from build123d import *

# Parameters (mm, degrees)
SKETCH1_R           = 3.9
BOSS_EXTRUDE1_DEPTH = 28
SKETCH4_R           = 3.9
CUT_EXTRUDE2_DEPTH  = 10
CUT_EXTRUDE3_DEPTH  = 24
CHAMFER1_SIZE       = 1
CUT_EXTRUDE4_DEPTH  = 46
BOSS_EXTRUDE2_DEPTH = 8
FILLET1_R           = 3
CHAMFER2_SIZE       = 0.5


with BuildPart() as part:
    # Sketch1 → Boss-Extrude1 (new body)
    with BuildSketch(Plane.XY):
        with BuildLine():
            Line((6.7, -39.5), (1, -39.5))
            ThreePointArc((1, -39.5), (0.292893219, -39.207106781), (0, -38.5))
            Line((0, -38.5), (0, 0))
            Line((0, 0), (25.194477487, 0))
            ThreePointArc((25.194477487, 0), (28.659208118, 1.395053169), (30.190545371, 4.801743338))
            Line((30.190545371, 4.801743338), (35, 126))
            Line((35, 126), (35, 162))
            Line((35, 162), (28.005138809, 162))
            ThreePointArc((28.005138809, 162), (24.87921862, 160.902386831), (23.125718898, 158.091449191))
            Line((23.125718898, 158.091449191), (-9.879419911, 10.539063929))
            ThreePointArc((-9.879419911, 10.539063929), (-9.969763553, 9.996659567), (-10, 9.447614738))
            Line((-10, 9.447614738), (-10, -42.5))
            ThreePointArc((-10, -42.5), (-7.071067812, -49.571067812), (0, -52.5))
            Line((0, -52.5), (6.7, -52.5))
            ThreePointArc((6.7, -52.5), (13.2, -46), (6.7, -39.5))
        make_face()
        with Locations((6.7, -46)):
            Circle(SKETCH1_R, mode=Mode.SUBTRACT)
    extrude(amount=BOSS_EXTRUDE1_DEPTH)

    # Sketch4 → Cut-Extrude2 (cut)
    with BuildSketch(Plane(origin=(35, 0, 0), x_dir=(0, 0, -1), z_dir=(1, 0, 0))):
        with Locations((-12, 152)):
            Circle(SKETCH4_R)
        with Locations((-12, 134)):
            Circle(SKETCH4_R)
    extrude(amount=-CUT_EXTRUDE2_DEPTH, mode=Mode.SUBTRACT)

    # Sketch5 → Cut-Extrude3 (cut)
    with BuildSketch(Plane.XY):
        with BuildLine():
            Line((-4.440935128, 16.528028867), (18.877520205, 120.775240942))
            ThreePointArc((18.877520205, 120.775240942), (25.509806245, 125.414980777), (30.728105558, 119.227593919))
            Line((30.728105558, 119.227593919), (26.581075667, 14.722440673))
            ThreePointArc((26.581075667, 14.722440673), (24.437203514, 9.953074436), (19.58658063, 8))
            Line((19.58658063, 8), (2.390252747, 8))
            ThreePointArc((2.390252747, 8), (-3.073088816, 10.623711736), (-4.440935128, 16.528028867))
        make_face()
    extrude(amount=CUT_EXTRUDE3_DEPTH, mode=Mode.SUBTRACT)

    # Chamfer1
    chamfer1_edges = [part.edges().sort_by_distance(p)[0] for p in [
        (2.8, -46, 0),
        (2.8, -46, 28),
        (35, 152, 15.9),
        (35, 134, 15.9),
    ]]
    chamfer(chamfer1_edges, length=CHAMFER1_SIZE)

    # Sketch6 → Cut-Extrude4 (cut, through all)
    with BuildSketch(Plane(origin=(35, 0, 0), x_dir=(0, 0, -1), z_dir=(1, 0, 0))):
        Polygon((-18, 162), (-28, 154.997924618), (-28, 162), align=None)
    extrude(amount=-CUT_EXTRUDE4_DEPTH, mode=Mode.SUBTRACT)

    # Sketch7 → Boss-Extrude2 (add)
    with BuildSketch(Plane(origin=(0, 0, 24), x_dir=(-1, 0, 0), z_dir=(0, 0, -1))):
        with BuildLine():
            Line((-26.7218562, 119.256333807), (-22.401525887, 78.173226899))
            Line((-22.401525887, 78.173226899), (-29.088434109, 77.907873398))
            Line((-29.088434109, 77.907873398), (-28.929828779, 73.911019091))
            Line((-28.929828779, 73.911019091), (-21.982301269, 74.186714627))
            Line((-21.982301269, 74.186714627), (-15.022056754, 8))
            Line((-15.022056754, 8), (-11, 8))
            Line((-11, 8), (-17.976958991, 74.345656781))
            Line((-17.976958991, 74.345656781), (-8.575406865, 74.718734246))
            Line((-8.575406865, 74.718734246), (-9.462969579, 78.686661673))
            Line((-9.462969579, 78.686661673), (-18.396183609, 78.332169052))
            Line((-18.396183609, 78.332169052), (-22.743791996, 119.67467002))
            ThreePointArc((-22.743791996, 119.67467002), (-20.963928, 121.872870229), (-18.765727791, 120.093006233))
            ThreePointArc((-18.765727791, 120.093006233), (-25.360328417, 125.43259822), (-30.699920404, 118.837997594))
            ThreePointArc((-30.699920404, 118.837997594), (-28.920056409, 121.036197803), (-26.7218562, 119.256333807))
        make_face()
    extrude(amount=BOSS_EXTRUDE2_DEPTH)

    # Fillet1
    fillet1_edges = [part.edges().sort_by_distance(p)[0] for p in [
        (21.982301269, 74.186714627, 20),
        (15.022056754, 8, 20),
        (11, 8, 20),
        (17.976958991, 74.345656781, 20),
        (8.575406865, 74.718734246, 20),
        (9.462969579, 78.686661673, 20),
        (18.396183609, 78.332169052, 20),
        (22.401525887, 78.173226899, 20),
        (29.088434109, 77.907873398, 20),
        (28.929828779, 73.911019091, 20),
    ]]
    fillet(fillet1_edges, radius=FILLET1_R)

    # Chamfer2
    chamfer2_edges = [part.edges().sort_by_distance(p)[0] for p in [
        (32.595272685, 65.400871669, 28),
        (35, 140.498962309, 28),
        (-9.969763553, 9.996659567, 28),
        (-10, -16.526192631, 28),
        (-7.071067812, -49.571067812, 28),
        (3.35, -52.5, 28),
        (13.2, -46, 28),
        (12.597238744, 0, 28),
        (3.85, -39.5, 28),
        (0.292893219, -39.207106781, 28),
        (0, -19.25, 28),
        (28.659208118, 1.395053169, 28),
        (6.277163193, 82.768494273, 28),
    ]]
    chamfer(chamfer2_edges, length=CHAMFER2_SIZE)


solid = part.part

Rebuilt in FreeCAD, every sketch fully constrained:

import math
import FreeCAD as App
import Part
import Sketcher
Q = App.Units.Quantity


def edges_at(feature, points):
    """Names of the edges that pass closest to the given points."""
    edges = feature.Shape.Edges
    near = lambda p: min(range(len(edges)), key=lambda i: edges[i].distToShape(Part.Vertex(*p))[0])
    return sorted({f"Edge{near(p) + 1}" for p in points})

doc = App.newDocument("Part")
body = doc.addObject("PartDesign::Body", "Body")

sketch1 = body.newObject("Sketcher::SketchObject", "Sketch")
sketch1.AttachmentSupport = (doc.getObject("XY_Plane"), [""])
sketch1.MapMode = "FlatFace"
sketch1.addGeometry(Part.LineSegment(App.Vector(6.7, -39.5, 0), App.Vector(1, -39.5, 0)), False)
sketch1.addGeometry(Part.ArcOfCircle(Part.Circle(App.Vector(1, -38.5, 0), App.Vector(0, 0, 1), 1), math.radians(-180), math.radians(-90)), False)
sketch1.addGeometry(Part.LineSegment(App.Vector(0, -38.5, 0), App.Vector(0, 0, 0)), False)
sketch1.addGeometry(Part.LineSegment(App.Vector(0, 0, 0), App.Vector(25.2, 0, 0)), False)
sketch1.addGeometry(Part.ArcOfCircle(Part.Circle(App.Vector(25.2, 5, 0), App.Vector(0, 0, 1), 5), math.radians(-90), math.radians(-2)), False)
sketch1.addGeometry(Part.LineSegment(App.Vector(30.2, 4.8, 0), App.Vector(35, 126, 0)), False)
sketch1.addGeometry(Part.LineSegment(App.Vector(35, 126, 0), App.Vector(35, 162, 0)), False)
sketch1.addGeometry(Part.LineSegment(App.Vector(35, 162, 0), App.Vector(28, 162, 0)), False)
sketch1.addGeometry(Part.ArcOfCircle(Part.Circle(App.Vector(28, 157, 0), App.Vector(0, 0, 1), 5), math.radians(90), math.radians(167)), False)
sketch1.addGeometry(Part.LineSegment(App.Vector(23.1, 158.1, 0), App.Vector(-9.9, 10.5, 0)), False)
sketch1.addGeometry(Part.ArcOfCircle(Part.Circle(App.Vector(-5, 9.4, 0), App.Vector(0, 0, 1), 5), math.radians(167.39), math.radians(180)), False)
sketch1.addGeometry(Part.LineSegment(App.Vector(-10, 9.4, 0), App.Vector(-10, -42.5, 0)), False)
sketch1.addGeometry(Part.ArcOfCircle(Part.Circle(App.Vector(0, -42.5, 0), App.Vector(0, 0, 1), 10), math.radians(180), math.radians(270)), False)
sketch1.addGeometry(Part.LineSegment(App.Vector(0, -52.5, 0), App.Vector(6.7, -52.5, 0)), False)
sketch1.addGeometry(Part.ArcOfCircle(Part.Circle(App.Vector(6.7, -46, 0), App.Vector(0, 0, 1), 6.5), math.radians(-90), math.radians(90)), False)
sketch1.addGeometry(Part.Circle(App.Vector(6.7, -46, 0), App.Vector(0, 0, 1), 3.9), False)
sketch1.addConstraint(Sketcher.Constraint("Tangent", 0, 2, 1, 2))
sketch1.addConstraint(Sketcher.Constraint("Tangent", 1, 1, 2, 1))
sketch1.addConstraint(Sketcher.Constraint("Coincident", 2, 2, 3, 1))
sketch1.addConstraint(Sketcher.Constraint("Tangent", 3, 2, 4, 1))
sketch1.addConstraint(Sketcher.Constraint("Tangent", 4, 2, 5, 1))
sketch1.addConstraint(Sketcher.Constraint("Coincident", 5, 2, 6, 1))
sketch1.addConstraint(Sketcher.Constraint("Coincident", 6, 2, 7, 1))
sketch1.addConstraint(Sketcher.Constraint("Tangent", 7, 2, 8, 1))
sketch1.addConstraint(Sketcher.Constraint("Tangent", 8, 2, 9, 1))
sketch1.addConstraint(Sketcher.Constraint("Tangent", 9, 2, 10, 1))
sketch1.addConstraint(Sketcher.Constraint("Tangent", 10, 2, 11, 1))
sketch1.addConstraint(Sketcher.Constraint("Tangent", 11, 2, 12, 1))
sketch1.addConstraint(Sketcher.Constraint("Tangent", 12, 2, 13, 1))
sketch1.addConstraint(Sketcher.Constraint("Tangent", 13, 2, 14, 1))
sketch1.addConstraint(Sketcher.Constraint("Tangent", 14, 2, 0, 1))
sketch1.addConstraint(Sketcher.Constraint("Horizontal", 0))
sketch1.addConstraint(Sketcher.Constraint("Vertical", 2))
sketch1.addConstraint(Sketcher.Constraint("Horizontal", 3))
sketch1.addConstraint(Sketcher.Constraint("Vertical", 6))
sketch1.addConstraint(Sketcher.Constraint("Horizontal", 7))
sketch1.addConstraint(Sketcher.Constraint("Vertical", 11))
sketch1.addConstraint(Sketcher.Constraint("Horizontal", 13))
sketch1.addConstraint(Sketcher.Constraint("Coincident", 2, 2, -1, 1))
sketch1.addConstraint(Sketcher.Constraint("Coincident", 15, 3, 14, 3))
sketch1.addConstraint(Sketcher.Constraint("Equal", 4, 8))
sketch1.addConstraint(Sketcher.Constraint("Equal", 8, 10))
sketch1.addConstraint(Sketcher.Constraint("PointOnObject", 12, 3, -2))
sketch1.addConstraint(Sketcher.Constraint("Radius", 1, 1.0))
sketch1.addConstraint(Sketcher.Constraint("Radius", 4, 5.0))
sketch1.addConstraint(Sketcher.Constraint("Radius", 12, 10.0))
sketch1.addConstraint(Sketcher.Constraint("Diameter", 15, 7.8))
sketch1.addConstraint(Sketcher.Constraint("Radius", 14, 6.5))
sketch1.addConstraint(Sketcher.Constraint("DistanceY", 6, 1, 6, 2, 36.0))
sketch1.addConstraint(Sketcher.Constraint("DistanceX", 0, 2, 0, 1, 5.7))
sketch1.addConstraint(Sketcher.Constraint("DistanceY", 2, 1, 2, 2, 38.5))
sketch1.addConstraint(Sketcher.Constraint("DistanceY", -1, 1, 8, 3, 157.0))
sketch1.addConstraint(Sketcher.Constraint("DistanceX", -1, 1, 5, 2, 35.0))
sketch1.addConstraint(Sketcher.Constraint("DistanceX", 7, 2, 7, 1, 6.994861))
sketch1.addConstraint(Sketcher.Constraint("DistanceX", 3, 1, 3, 2, 25.194477))
sketch1.addConstraint(Sketcher.Constraint("DistanceY", 11, 2, 11, 1, 51.947615))
pad1 = body.newObject("PartDesign::Pad", "Pad")
pad1.Profile = sketch1
pad1.Length = 28

sketch2 = body.newObject("Sketcher::SketchObject", "Sketch001")
sketch2.AttachmentSupport = (doc.getObject("YZ_Plane"), [""])
sketch2.MapMode = "FlatFace"
sketch2.AttachmentOffset = App.Placement(App.Vector(0, 0, 35), App.Rotation())
sketch2.addGeometry(Part.Circle(App.Vector(152, 12, 0), App.Vector(0, 0, 1), 3.9), False)
sketch2.addGeometry(Part.Circle(App.Vector(134, 12, 0), App.Vector(0, 0, 1), 3.9), False)
sketch2.addConstraint(Sketcher.Constraint("Equal", 0, 1))
sketch2.addConstraint(Sketcher.Constraint("Horizontal", 0, 3, 1, 3))
sketch2.addConstraint(Sketcher.Constraint("Diameter", 0, 7.8))
sketch2.addConstraint(Sketcher.Constraint("DistanceX", -1, 1, 0, 3, 152.0))
sketch2.addConstraint(Sketcher.Constraint("DistanceY", -1, 1, 0, 3, 12.0))
sketch2.addConstraint(Sketcher.Constraint("DistanceX", -1, 1, 1, 3, 134.0))
pocket1 = body.newObject("PartDesign::Pocket", "Pocket")
pocket1.Profile = sketch2
pocket1.Length = 10

sketch3 = body.newObject("Sketcher::SketchObject", "Sketch002")
sketch3.AttachmentSupport = (doc.getObject("XY_Plane"), [""])
sketch3.MapMode = "FlatFace"
sketch3.addGeometry(Part.LineSegment(App.Vector(19, 121, 0), App.Vector(-4, 17, 0)), False)
sketch3.addGeometry(Part.ArcOfCircle(Part.Circle(App.Vector(2, 15, 0), App.Vector(0, 0, 1), 7), math.radians(167), math.radians(270)), False)
sketch3.addGeometry(Part.LineSegment(App.Vector(2, 8, 0), App.Vector(20, 8, 0)), False)
sketch3.addGeometry(Part.ArcOfCircle(Part.Circle(App.Vector(20, 15, 0), App.Vector(0, 0, 1), 7), math.radians(-90), math.radians(-2)), False)
sketch3.addGeometry(Part.LineSegment(App.Vector(27, 15, 0), App.Vector(31, 119, 0)), False)
sketch3.addGeometry(Part.ArcOfCircle(Part.Circle(App.Vector(25, 119, 0), App.Vector(0, 0, 1), 6), math.radians(-2), math.radians(167)), False)
sketch3.addConstraint(Sketcher.Constraint("Tangent", 0, 2, 1, 1))
sketch3.addConstraint(Sketcher.Constraint("Tangent", 1, 2, 2, 1))
sketch3.addConstraint(Sketcher.Constraint("Tangent", 2, 2, 3, 1))
sketch3.addConstraint(Sketcher.Constraint("Tangent", 3, 2, 4, 1))
sketch3.addConstraint(Sketcher.Constraint("Tangent", 4, 2, 5, 1))
sketch3.addConstraint(Sketcher.Constraint("Tangent", 5, 2, 0, 1))
sketch3.addConstraint(Sketcher.Constraint("Horizontal", 2))
sketch3.addConstraint(Sketcher.Constraint("Equal", 1, 3))
sketch3.addConstraint(Sketcher.Constraint("Radius", 1, 7.0))
sketch3.addConstraint(Sketcher.Constraint("Radius", 5, 6.0))
sketch3.addConstraint(Sketcher.Constraint("DistanceY", -1, 1, 1, 3, 15.0))
sketch3.addConstraint(Sketcher.Constraint("DistanceY", -1, 1, 5, 3, 119.465502))
sketch3.addConstraint(Sketcher.Constraint("DistanceY", 3, 2, 5, 2, 106.0528))
sketch3.addConstraint(Sketcher.Constraint("DistanceX", 2, 1, 2, 2, 17.196328))
sketch3.addConstraint(Sketcher.Constraint("DistanceX", -1, 1, 3, 3, 19.586581))
pocket2 = body.newObject("PartDesign::Pocket", "Pocket001")
pocket2.Profile = sketch3
pocket2.Length = 24
pocket2.Reversed = True
doc.recompute()

chamfer = body.newObject("PartDesign::Chamfer", "Chamfer")
chamfer.Base = (pocket2, edges_at(pocket2, [
    (2.8, -46, 0),
    (2.8, -46, 28),
    (35, 152, 15.9),
    (35, 134, 15.9),
]))
chamfer.Size = 1

sketch4 = body.newObject("Sketcher::SketchObject", "Sketch003")
sketch4.AttachmentSupport = (doc.getObject("YZ_Plane"), [""])
sketch4.MapMode = "FlatFace"
sketch4.AttachmentOffset = App.Placement(App.Vector(0, 0, 35), App.Rotation())
sketch4.addGeometry(Part.LineSegment(App.Vector(155, 28, 0), App.Vector(162, 18, 0)), False)
sketch4.addGeometry(Part.LineSegment(App.Vector(162, 18, 0), App.Vector(162, 28, 0)), False)
sketch4.addGeometry(Part.LineSegment(App.Vector(162, 28, 0), App.Vector(155, 28, 0)), False)
sketch4.addConstraint(Sketcher.Constraint("Coincident", 0, 2, 1, 1))
sketch4.addConstraint(Sketcher.Constraint("Coincident", 1, 2, 2, 1))
sketch4.addConstraint(Sketcher.Constraint("Coincident", 2, 2, 0, 1))
sketch4.addConstraint(Sketcher.Constraint("Vertical", 1))
sketch4.addConstraint(Sketcher.Constraint("Horizontal", 2))
sketch4.addConstraint(Sketcher.Constraint("DistanceY", 1, 1, 1, 2, 10.0))
sketch4.addConstraint(Sketcher.Constraint("Angle", 0, Q("-55 deg")))
sketch4.addConstraint(Sketcher.Constraint("DistanceX", -1, 1, 0, 2, 162.0))
sketch4.addConstraint(Sketcher.Constraint("DistanceY", -1, 1, 0, 2, 18.0))
pocket3 = body.newObject("PartDesign::Pocket", "Pocket002")
pocket3.Profile = sketch4
pocket3.Type = "ThroughAll"

sketch5 = body.newObject("Sketcher::SketchObject", "Sketch004")
sketch5.AttachmentSupport = (doc.getObject("XY_Plane"), [""])
sketch5.MapMode = "FlatFace"
sketch5.AttachmentOffset = App.Placement(App.Vector(0, 0, 24), App.Rotation())
sketch5.addGeometry(Part.LineSegment(App.Vector(26.7, 119.3, 0), App.Vector(22.4, 78.2, 0)), False)
sketch5.addGeometry(Part.LineSegment(App.Vector(22.4, 78.2, 0), App.Vector(29.1, 77.9, 0)), False)
sketch5.addGeometry(Part.LineSegment(App.Vector(29.1, 77.9, 0), App.Vector(28.9, 73.9, 0)), False)
sketch5.addGeometry(Part.LineSegment(App.Vector(28.9, 73.9, 0), App.Vector(22, 74.2, 0)), False)
sketch5.addGeometry(Part.LineSegment(App.Vector(22, 74.2, 0), App.Vector(15, 8, 0)), False)
sketch5.addGeometry(Part.LineSegment(App.Vector(15, 8, 0), App.Vector(11, 8, 0)), False)
sketch5.addGeometry(Part.LineSegment(App.Vector(11, 8, 0), App.Vector(18, 74.3, 0)), False)
sketch5.addGeometry(Part.LineSegment(App.Vector(18, 74.3, 0), App.Vector(8.6, 74.7, 0)), False)
sketch5.addGeometry(Part.LineSegment(App.Vector(8.6, 74.7, 0), App.Vector(9.5, 78.7, 0)), False)
sketch5.addGeometry(Part.LineSegment(App.Vector(9.5, 78.7, 0), App.Vector(18.4, 78.3, 0)), False)
sketch5.addGeometry(Part.LineSegment(App.Vector(18.4, 78.3, 0), App.Vector(22.7, 119.7, 0)), False)
sketch5.addGeometry(Part.ArcOfCircle(Part.Circle(App.Vector(20.8, 119.9, 0), App.Vector(0, 0, 1), 2), math.radians(-6), math.radians(174)), False)
sketch5.addGeometry(Part.ArcOfCircle(Part.Circle(App.Vector(24.7, 119.5, 0), App.Vector(0, 0, 1), 6), math.radians(-6), math.radians(174)), False)
sketch5.addGeometry(Part.ArcOfCircle(Part.Circle(App.Vector(28.7, 119, 0), App.Vector(0, 0, 1), 2), math.radians(-6), math.radians(174)), False)
sketch5.addConstraint(Sketcher.Constraint("Coincident", 0, 2, 1, 1))
sketch5.addConstraint(Sketcher.Constraint("Coincident", 1, 2, 2, 1))
sketch5.addConstraint(Sketcher.Constraint("Coincident", 2, 2, 3, 1))
sketch5.addConstraint(Sketcher.Constraint("Coincident", 3, 2, 4, 1))
sketch5.addConstraint(Sketcher.Constraint("Coincident", 4, 2, 5, 1))
sketch5.addConstraint(Sketcher.Constraint("Coincident", 5, 2, 6, 1))
sketch5.addConstraint(Sketcher.Constraint("Coincident", 6, 2, 7, 1))
sketch5.addConstraint(Sketcher.Constraint("Coincident", 7, 2, 8, 1))
sketch5.addConstraint(Sketcher.Constraint("Coincident", 8, 2, 9, 1))
sketch5.addConstraint(Sketcher.Constraint("Coincident", 9, 2, 10, 1))
sketch5.addConstraint(Sketcher.Constraint("Tangent", 10, 2, 11, 1))
sketch5.addConstraint(Sketcher.Constraint("Tangent", 11, 2, 12, 2))
sketch5.addConstraint(Sketcher.Constraint("Tangent", 12, 1, 13, 1))
sketch5.addConstraint(Sketcher.Constraint("Tangent", 13, 2, 0, 1))
sketch5.addConstraint(Sketcher.Constraint("Horizontal", 5))
sketch5.addConstraint(Sketcher.Constraint("Equal", 11, 13))
sketch5.addConstraint(Sketcher.Constraint("Perpendicular", 1, 2))
sketch5.addConstraint(Sketcher.Constraint("Perpendicular", 2, 3))
sketch5.addConstraint(Sketcher.Constraint("Parallel", 0, 4))
sketch5.addConstraint(Sketcher.Constraint("Parallel", 4, 6))
sketch5.addConstraint(Sketcher.Constraint("Parallel", 3, 7))
sketch5.addConstraint(Sketcher.Constraint("Parallel", 7, 9))
sketch5.addConstraint(Sketcher.Constraint("Parallel", 6, 10))
sketch5.addConstraint(Sketcher.Constraint("Radius", 11, 2.0))
sketch5.addConstraint(Sketcher.Constraint("Radius", 12, 6.0))
sketch5.addConstraint(Sketcher.Constraint("Distance", 2, 4.0))
sketch5.addConstraint(Sketcher.Constraint("DistanceY", -1, 1, 4, 2, 8.0))
sketch5.addConstraint(Sketcher.Constraint("DistanceX", -1, 1, 5, 2, 11.0))
sketch5.addConstraint(Sketcher.Constraint("Distance", 6, 66.711499))
sketch5.addConstraint(Sketcher.Constraint("DistanceY", -1, 1, 12, 3, 119.465502))
sketch5.addConstraint(Sketcher.Constraint("DistanceX", -1, 1, 3, 2, 21.982301))
sketch5.addConstraint(Sketcher.Constraint("DistanceX", 0, 2, 12, 3, 2.331298))
sketch5.addConstraint(Sketcher.Constraint("DistanceY", 9, 2, 10, 2, 41.342501))
sketch5.addConstraint(Sketcher.Constraint("Distance", 1, 6.692171))
sketch5.addConstraint(Sketcher.Constraint("Distance", 4, 66.551681))
sketch5.addConstraint(Sketcher.Constraint("Distance", 7, 9.408952))
sketch5.addConstraint(Sketcher.Constraint("DistanceX", -1, 1, 11, 3, 20.75476))
sketch5.addConstraint(Sketcher.Constraint("DistanceY", -1, 1, 11, 3, 119.883838))
sketch5.addConstraint(Sketcher.Constraint("DistanceX", -1, 1, 13, 3, 28.710888))
sketch5.addConstraint(Sketcher.Constraint("DistanceX", -1, 1, 2, 2, 28.929829))
sketch5.addConstraint(Sketcher.Constraint("DistanceX", -1, 1, 8, 2, 9.46297))
pad2 = body.newObject("PartDesign::Pad", "Pad001")
pad2.Profile = sketch5
pad2.Length = 8
pad2.Reversed = True
doc.recompute()

fillet = body.newObject("PartDesign::Fillet", "Fillet")
fillet.Base = (pad2, edges_at(pad2, [
    (21.982, 74.187, 20),
    (15.022, 8, 20),
    (11, 8, 20),
    (17.977, 74.346, 20),
    (8.575, 74.719, 20),
    (9.463, 78.687, 20),
    (18.396, 78.332, 20),
    (22.402, 78.173, 20),
    (29.088, 77.908, 20),
    (28.93, 73.911, 20),
]))
fillet.Radius = 3
doc.recompute()

chamfer2 = body.newObject("PartDesign::Chamfer", "Chamfer001")
chamfer2.Base = (fillet, edges_at(fillet, [
    (32.595, 65.401, 28),
    (35, 140.499, 28),
    (-9.97, 9.997, 28),
    (-10, -16.526, 28),
    (-7.071, -49.571, 28),
    (3.35, -52.5, 28),
    (13.2, -46, 28),
    (12.597, 0, 28),
    (3.85, -39.5, 28),
    (0.293, -39.207, 28),
    (0, -19.25, 28),
    (28.659, 1.395, 28),
    (6.277, 82.768, 28),
]))
chamfer2.Size = 0.5

doc.recompute()
